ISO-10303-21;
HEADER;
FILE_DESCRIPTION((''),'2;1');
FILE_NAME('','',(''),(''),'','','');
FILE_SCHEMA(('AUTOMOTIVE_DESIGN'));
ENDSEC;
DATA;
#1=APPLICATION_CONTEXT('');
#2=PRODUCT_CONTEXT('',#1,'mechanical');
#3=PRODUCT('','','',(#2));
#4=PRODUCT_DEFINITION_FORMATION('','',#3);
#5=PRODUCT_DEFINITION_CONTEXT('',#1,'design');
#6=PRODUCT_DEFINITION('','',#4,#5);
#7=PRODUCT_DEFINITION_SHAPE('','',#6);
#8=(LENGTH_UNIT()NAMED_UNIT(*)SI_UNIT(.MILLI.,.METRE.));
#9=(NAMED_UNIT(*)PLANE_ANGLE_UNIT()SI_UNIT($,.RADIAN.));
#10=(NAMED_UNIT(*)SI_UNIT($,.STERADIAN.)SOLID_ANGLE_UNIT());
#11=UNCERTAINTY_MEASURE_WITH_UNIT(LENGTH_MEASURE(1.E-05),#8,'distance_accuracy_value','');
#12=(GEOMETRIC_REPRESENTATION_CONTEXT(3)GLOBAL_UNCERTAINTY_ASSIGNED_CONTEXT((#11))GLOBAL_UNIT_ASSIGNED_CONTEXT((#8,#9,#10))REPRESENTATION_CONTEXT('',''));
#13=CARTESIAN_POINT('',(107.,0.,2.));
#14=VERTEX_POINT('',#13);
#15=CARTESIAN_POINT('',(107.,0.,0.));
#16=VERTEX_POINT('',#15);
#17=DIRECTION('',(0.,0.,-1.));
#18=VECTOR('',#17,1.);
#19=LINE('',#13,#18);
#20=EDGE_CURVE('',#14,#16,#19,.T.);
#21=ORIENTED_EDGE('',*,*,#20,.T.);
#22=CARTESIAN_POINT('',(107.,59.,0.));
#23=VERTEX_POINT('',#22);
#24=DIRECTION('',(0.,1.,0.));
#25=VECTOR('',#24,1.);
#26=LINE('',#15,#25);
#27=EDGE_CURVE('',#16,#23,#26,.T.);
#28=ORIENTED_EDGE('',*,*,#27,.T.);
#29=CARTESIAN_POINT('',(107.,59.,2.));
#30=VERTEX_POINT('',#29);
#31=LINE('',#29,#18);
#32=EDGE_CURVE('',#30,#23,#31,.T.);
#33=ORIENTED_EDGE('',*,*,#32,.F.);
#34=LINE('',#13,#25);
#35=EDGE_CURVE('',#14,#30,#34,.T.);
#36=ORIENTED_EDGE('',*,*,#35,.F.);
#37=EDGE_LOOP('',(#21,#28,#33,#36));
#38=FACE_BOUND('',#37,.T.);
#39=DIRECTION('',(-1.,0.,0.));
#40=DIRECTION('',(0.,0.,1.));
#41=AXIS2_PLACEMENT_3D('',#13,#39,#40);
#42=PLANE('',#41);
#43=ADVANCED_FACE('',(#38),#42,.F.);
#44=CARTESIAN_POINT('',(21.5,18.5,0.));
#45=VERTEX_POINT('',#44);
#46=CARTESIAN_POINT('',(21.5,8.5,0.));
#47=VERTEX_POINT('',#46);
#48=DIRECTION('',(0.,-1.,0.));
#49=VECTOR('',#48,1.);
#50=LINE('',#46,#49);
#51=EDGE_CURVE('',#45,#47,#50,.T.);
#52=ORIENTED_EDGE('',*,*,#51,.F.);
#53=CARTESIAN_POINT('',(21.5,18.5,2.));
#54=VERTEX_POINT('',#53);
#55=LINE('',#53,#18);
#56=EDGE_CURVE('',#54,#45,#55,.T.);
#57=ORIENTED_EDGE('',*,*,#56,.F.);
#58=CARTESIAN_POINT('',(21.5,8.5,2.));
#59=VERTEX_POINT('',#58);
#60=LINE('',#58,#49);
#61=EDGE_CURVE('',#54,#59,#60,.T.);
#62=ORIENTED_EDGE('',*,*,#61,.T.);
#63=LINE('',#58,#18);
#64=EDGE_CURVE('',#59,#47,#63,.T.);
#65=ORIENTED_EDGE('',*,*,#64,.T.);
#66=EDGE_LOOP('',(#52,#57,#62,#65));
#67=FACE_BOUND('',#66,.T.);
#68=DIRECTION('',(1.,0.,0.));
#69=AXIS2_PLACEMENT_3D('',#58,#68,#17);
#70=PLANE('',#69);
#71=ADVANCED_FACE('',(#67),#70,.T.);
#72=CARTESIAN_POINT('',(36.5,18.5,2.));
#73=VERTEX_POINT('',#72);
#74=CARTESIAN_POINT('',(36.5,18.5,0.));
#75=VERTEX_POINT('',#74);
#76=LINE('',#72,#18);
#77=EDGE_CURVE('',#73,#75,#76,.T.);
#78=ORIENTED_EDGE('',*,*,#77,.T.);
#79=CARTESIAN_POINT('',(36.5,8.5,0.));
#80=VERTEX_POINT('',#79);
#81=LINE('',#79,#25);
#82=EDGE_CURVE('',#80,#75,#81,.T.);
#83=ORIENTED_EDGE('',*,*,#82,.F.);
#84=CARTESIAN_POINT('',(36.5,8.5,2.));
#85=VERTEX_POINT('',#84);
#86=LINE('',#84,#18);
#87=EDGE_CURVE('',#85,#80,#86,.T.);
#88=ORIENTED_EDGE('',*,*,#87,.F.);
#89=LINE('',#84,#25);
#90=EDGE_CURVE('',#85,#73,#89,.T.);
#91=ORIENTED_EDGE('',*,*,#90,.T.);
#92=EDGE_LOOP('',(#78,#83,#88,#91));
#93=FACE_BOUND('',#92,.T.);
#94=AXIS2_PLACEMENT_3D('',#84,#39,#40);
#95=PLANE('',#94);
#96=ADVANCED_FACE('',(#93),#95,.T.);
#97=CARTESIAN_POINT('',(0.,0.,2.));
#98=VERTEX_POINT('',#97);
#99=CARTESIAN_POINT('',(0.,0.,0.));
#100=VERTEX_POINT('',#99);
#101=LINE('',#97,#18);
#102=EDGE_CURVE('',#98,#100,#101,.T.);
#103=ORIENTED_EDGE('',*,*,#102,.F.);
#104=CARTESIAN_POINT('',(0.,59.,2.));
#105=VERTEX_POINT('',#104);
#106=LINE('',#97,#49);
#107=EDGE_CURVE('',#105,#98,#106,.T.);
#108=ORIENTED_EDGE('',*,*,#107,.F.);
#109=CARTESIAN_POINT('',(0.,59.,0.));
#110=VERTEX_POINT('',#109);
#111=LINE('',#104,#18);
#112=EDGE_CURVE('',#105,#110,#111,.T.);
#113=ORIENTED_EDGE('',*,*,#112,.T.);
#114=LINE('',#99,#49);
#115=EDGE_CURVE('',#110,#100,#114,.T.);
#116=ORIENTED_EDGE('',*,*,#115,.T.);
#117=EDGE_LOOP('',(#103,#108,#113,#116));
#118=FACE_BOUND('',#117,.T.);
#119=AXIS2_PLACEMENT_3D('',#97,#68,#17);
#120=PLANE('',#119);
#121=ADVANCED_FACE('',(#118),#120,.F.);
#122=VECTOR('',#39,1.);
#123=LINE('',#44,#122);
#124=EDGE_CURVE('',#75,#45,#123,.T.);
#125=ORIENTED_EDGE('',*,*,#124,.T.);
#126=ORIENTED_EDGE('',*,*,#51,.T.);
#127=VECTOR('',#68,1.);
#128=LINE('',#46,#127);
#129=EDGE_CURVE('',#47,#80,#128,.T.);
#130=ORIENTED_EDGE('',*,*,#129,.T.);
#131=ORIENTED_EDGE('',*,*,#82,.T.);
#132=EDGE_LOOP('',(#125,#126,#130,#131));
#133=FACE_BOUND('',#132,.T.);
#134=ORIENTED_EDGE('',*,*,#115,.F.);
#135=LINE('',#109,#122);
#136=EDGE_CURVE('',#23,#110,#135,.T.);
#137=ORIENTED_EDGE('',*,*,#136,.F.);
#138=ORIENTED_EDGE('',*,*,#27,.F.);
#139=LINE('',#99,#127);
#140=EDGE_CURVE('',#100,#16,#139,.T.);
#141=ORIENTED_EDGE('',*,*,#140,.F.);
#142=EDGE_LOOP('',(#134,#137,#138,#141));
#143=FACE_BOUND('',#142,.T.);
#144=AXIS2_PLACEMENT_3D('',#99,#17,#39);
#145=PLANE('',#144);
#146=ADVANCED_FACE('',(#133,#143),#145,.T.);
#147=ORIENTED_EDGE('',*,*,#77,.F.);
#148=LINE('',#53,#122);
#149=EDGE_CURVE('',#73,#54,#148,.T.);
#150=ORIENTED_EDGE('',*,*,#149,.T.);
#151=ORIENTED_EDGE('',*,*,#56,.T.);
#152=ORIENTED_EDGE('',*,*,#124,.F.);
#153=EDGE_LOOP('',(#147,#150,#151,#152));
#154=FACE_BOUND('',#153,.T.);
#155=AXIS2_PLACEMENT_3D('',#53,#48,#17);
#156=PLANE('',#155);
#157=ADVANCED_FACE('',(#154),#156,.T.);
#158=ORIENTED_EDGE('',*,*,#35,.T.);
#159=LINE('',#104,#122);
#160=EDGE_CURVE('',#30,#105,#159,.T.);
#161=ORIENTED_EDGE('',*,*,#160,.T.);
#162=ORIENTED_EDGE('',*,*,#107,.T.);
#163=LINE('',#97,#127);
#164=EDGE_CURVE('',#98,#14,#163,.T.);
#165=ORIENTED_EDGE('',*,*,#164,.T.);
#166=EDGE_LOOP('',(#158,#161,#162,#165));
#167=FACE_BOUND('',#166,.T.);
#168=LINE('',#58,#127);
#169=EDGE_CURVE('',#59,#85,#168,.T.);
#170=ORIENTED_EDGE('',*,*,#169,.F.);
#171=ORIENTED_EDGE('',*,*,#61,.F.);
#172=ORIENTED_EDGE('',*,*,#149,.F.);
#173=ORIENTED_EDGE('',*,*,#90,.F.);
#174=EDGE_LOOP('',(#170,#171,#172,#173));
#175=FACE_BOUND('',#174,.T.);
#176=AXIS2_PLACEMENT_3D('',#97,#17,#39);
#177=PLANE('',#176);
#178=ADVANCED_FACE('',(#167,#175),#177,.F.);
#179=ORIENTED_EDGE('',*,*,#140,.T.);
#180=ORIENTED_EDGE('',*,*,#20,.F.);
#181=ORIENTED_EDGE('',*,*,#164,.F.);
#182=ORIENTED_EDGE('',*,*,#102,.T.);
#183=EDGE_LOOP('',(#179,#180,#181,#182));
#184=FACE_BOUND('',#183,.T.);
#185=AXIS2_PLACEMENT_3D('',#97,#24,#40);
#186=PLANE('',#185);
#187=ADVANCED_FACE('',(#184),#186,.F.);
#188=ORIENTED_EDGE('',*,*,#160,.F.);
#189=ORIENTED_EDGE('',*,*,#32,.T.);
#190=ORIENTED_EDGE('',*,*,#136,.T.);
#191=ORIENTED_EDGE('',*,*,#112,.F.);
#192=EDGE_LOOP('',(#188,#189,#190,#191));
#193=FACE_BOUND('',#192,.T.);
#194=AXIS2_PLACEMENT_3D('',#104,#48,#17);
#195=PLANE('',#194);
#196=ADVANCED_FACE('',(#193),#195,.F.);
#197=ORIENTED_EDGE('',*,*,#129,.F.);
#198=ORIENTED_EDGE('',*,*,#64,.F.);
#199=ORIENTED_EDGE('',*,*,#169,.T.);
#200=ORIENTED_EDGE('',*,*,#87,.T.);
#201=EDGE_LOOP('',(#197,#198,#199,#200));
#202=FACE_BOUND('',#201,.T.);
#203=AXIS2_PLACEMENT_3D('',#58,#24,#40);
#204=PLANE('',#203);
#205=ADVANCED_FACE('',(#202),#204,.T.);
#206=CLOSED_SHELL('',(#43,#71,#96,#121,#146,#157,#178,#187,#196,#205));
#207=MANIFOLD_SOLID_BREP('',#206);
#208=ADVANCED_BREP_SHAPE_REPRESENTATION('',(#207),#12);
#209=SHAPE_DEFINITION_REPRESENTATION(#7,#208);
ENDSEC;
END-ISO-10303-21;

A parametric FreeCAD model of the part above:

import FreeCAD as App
import Part
import Sketcher

V = App.Vector

doc = App.newDocument("Part")
body = doc.addObject("PartDesign::Body", "Body")

sketch1 = body.newObject("Sketcher::SketchObject", "Sketch")
sketch1.AttachmentSupport = (doc.getObject("XY_Plane"), [""])
sketch1.MapMode = "FlatFace"
sketch1.addGeometry(Part.LineSegment(V(0, 59, 0), V(0, 0, 0)), False)
sketch1.addGeometry(Part.LineSegment(V(0, 0, 0), V(107, 0, 0)), False)
sketch1.addGeometry(Part.LineSegment(V(107, 0, 0), V(107, 59, 0)), False)
sketch1.addGeometry(Part.LineSegment(V(107, 59, 0), V(0, 59, 0)), False)
sketch1.addGeometry(Part.LineSegment(V(36.5, 8.5, 0), V(21.5, 8.5, 0)), False)
sketch1.addGeometry(Part.LineSegment(V(21.5, 8.5, 0), V(21.5, 18.5, 0)), False)
sketch1.addGeometry(Part.LineSegment(V(21.5, 18.5, 0), V(36.5, 18.5, 0)), False)
sketch1.addGeometry(Part.LineSegment(V(36.5, 18.5, 0), V(36.5, 8.5, 0)), False)
sketch1.addConstraint(Sketcher.Constraint("Coincident", 0, 2, 1, 1))
sketch1.addConstraint(Sketcher.Constraint("Coincident", 1, 2, 2, 1))
sketch1.addConstraint(Sketcher.Constraint("Coincident", 2, 2, 3, 1))
sketch1.addConstraint(Sketcher.Constraint("Coincident", 3, 2, 0, 1))
sketch1.addConstraint(Sketcher.Constraint("Coincident", 4, 2, 5, 1))
sketch1.addConstraint(Sketcher.Constraint("Coincident", 5, 2, 6, 1))
sketch1.addConstraint(Sketcher.Constraint("Coincident", 6, 2, 7, 1))
sketch1.addConstraint(Sketcher.Constraint("Coincident", 7, 2, 4, 1))
sketch1.addConstraint(Sketcher.Constraint("Vertical", 0))
sketch1.addConstraint(Sketcher.Constraint("Horizontal", 1))
sketch1.addConstraint(Sketcher.Constraint("Vertical", 2))
sketch1.addConstraint(Sketcher.Constraint("Horizontal", 3))
sketch1.addConstraint(Sketcher.Constraint("Horizontal", 4))
sketch1.addConstraint(Sketcher.Constraint("Vertical", 5))
sketch1.addConstraint(Sketcher.Constraint("Horizontal", 6))
sketch1.addConstraint(Sketcher.Constraint("Vertical", 7))
sketch1.addConstraint(Sketcher.Constraint("Coincident", 0, 2, -1, 1))
sketch1.addConstraint(Sketcher.Constraint("DistanceX", 1, 1, 1, 2, 107.0))
sketch1.addConstraint(Sketcher.Constraint("DistanceX", 4, 2, 4, 1, 15.0))
sketch1.addConstraint(Sketcher.Constraint("DistanceY", 0, 2, 0, 1, 59.0))
sketch1.addConstraint(Sketcher.Constraint("DistanceY", 5, 1, 5, 2, 10.0))
sketch1.addConstraint(Sketcher.Constraint("DistanceX", -1, 1, 4, 2, 21.5))
sketch1.addConstraint(Sketcher.Constraint("DistanceY", -1, 1, 4, 2, 8.5))
pad1 = body.newObject("PartDesign::Pad", "Pad")
pad1.Profile = sketch1
pad1.Length = 2

doc.recompute()
